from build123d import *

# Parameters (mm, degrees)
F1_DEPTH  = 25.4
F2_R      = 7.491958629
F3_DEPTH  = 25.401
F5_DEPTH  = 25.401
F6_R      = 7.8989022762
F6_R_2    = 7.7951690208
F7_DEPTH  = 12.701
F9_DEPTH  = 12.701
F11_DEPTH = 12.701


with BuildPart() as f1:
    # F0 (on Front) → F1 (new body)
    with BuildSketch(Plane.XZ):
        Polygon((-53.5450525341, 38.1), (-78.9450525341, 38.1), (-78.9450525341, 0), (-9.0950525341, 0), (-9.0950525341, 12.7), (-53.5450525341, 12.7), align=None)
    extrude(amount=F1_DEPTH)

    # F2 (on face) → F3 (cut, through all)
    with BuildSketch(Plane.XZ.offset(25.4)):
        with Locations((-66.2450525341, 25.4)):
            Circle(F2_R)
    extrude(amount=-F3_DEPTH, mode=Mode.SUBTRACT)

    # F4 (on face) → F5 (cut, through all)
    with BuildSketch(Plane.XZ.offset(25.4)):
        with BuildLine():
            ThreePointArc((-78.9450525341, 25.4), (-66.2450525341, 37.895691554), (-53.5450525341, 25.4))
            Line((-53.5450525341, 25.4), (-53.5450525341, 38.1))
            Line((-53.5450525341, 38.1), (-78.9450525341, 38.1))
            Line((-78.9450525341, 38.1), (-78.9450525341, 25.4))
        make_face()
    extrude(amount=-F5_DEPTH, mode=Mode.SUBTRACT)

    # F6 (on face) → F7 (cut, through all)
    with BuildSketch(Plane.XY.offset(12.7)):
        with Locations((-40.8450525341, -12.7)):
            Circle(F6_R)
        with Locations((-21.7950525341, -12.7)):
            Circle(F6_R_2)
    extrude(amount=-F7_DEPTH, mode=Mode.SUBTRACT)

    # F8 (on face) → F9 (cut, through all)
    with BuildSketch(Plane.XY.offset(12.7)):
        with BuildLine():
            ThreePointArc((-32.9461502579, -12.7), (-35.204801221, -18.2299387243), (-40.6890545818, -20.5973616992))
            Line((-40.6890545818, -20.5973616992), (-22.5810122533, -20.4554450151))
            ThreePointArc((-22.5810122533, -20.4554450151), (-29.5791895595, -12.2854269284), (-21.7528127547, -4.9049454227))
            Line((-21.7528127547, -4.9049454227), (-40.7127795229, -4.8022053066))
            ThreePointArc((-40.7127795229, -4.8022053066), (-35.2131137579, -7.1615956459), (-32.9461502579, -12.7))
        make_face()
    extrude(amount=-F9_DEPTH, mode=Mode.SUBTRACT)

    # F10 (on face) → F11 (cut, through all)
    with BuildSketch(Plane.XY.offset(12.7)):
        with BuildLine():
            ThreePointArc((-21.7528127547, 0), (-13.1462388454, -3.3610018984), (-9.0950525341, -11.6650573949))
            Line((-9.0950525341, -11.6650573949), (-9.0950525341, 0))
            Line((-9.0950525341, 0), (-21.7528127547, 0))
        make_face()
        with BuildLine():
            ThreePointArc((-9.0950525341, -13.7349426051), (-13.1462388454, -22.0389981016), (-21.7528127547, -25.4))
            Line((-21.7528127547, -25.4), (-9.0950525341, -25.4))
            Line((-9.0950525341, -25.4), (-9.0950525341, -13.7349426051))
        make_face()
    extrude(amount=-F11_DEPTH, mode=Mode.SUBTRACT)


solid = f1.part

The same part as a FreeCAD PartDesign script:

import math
import FreeCAD as App
import Part
import Sketcher
from FreeCAD import Vector
Q = App.Units.Quantity

doc = App.newDocument("Part")
body = doc.addObject("PartDesign::Body", "Body")

sketch1 = body.newObject("Sketcher::SketchObject", "Sketch")
sketch1.AttachmentSupport = (doc.getObject("XZ_Plane"), [""])
sketch1.MapMode = "FlatFace"
sketch1.addGeometry([
    Part.LineSegment(Vector(-54, 38, 0), Vector(-79, 38, 0)),
    Part.LineSegment(Vector(-79, 38, 0), Vector(-79, 0, 0)),
    Part.LineSegment(Vector(-79, 0, 0), Vector(-9, 0, 0)),
    Part.LineSegment(Vector(-9, 0, 0), Vector(-9, 13, 0)),
    Part.LineSegment(Vector(-9, 13, 0), Vector(-54, 13, 0)),
    Part.LineSegment(Vector(-54, 13, 0), Vector(-54, 38, 0)),
], False)
sketch1.addConstraint([
    Sketcher.Constraint("Coincident", 0, 2, 1, 1),
    Sketcher.Constraint("Coincident", 1, 2, 2, 1),
    Sketcher.Constraint("Coincident", 2, 2, 3, 1),
    Sketcher.Constraint("Coincident", 3, 2, 4, 1),
    Sketcher.Constraint("Coincident", 4, 2, 5, 1),
    Sketcher.Constraint("Coincident", 5, 2, 0, 1),
    Sketcher.Constraint("Horizontal", 0),
    Sketcher.Constraint("Vertical", 1),
    Sketcher.Constraint("Horizontal", 2),
    Sketcher.Constraint("Vertical", 3),
    Sketcher.Constraint("Horizontal", 4),
    Sketcher.Constraint("Vertical", 5),
    Sketcher.Constraint("PointOnObject", 1, 2, -1),
    Sketcher.Constraint("Equal", 0, 5),
    Sketcher.Constraint("DistanceX", 0, 2, 0, 1, Q("1 in")),
    Sketcher.Constraint("DistanceY", 1, 2, 1, 1, Q("1.5 in")),
    Sketcher.Constraint("DistanceX", 2, 1, 2, 2, Q("2.75 in")),
    Sketcher.Constraint("DistanceX", 0, 2, -1, 1, Q("78.945053 mm")),
])
pad1 = body.newObject("PartDesign::Pad", "Pad")
pad1.Profile = sketch1
pad1.Length = Q("1 in")

sketch2 = body.newObject("Sketcher::SketchObject", "Sketch001")
sketch2.AttachmentSupport = (doc.getObject("XZ_Plane"), [""])
sketch2.MapMode = "FlatFace"
sketch2.AttachmentOffset = App.Placement(Vector(0, 0, 1 * 25.4), App.Rotation())
sketch2.addGeometry(Part.Circle(Vector(-66, 25, 0), Vector(0, 0, 1), 7), False)
sketch2.addConstraint([
    Sketcher.Constraint("DistanceY", -1, 1, 0, 3, Q("1 in")),
    Sketcher.Constraint("Diameter", 0, Q("14.983917 mm")),
    Sketcher.Constraint("DistanceX", 0, 3, -1, 1, Q("66.245053 mm")),
])
pocket1 = body.newObject("PartDesign::Pocket", "Pocket")
pocket1.Profile = sketch2
pocket1.Type = "ThroughAll"

sketch3 = body.newObject("Sketcher::SketchObject", "Sketch002")
sketch3.AttachmentSupport = (doc.getObject("XZ_Plane"), [""])
sketch3.MapMode = "FlatFace"
sketch3.AttachmentOffset = App.Placement(Vector(0, 0, 1 * 25.4), App.Rotation())
sketch3.addGeometry([
    Part.ArcOfCircle(Part.Circle(Vector(-66, 25, 0), Vector(0, 0, 1), 13), math.radians(1), math.radians(179)),
    Part.LineSegment(Vector(-54, 25, 0), Vector(-54, 38, 0)),
    Part.LineSegment(Vector(-54, 38, 0), Vector(-79, 38, 0)),
    Part.LineSegment(Vector(-79, 38, 0), Vector(-79, 25, 0)),
], False)
sketch3.addConstraint([
    Sketcher.Constraint("Coincident", 0, 1, 1, 1),
    Sketcher.Constraint("Coincident", 1, 2, 2, 1),
    Sketcher.Constraint("Coincident", 2, 2, 3, 1),
    Sketcher.Constraint("Coincident", 3, 2, 0, 2),
    Sketcher.Constraint("Vertical", 1),
    Sketcher.Constraint("Horizontal", 2),
    Sketcher.Constraint("Vertical", 3),
    Sketcher.Constraint("Horizontal", 0, 1, 3, 2),
    Sketcher.Constraint("DistanceX", 2, 2, 2, 1, Q("1 in")),
    Sketcher.Constraint("DistanceY", 1, 1, 1, 2, Q("0.5 in")),
    Sketcher.Constraint("DistanceY", -1, 1, 0, 1, Q("1 in")),
    Sketcher.Constraint("Radius", 0, Q("12.70167 mm")),
    Sketcher.Constraint("DistanceX", 0, 3, -1, 1, Q("66.245053 mm")),
])
pocket2 = body.newObject("PartDesign::Pocket", "Pocket001")
pocket2.Profile = sketch3
pocket2.Type = "ThroughAll"

sketch4 = body.newObject("Sketcher::SketchObject", "Sketch003")
sketch4.AttachmentSupport = (doc.getObject("XY_Plane"), [""])
sketch4.MapMode = "FlatFace"
sketch4.AttachmentOffset = App.Placement(Vector(0, 0, 0.5 * 25.4), App.Rotation())
sketch4.addGeometry([
    Part.Circle(Vector(-41, -13, 0), Vector(0, 0, 1), 8),
    Part.Circle(Vector(-22, -13, 0), Vector(0, 0, 1), 8),
], False)
sketch4.addConstraint([
    Sketcher.Constraint("Horizontal", 0, 3, 1, 3),
    Sketcher.Constraint("DistanceY", 0, 3, -1, 1, Q("0.5 in")),
    Sketcher.Constraint("DistanceX", 0, 3, 1, 3, Q("0.75 in")),
    Sketcher.Constraint("Diameter", 1, Q("15.590338 mm")),
    Sketcher.Constraint("Diameter", 0, Q("15.797805 mm")),
    Sketcher.Constraint("DistanceX", 0, 3, -1, 1, Q("40.845053 mm")),
])
pocket3 = body.newObject("PartDesign::Pocket", "Pocket002")
pocket3.Profile = sketch4
pocket3.Type = "ThroughAll"

sketch5 = body.newObject("Sketcher::SketchObject", "Sketch004")
sketch5.AttachmentSupport = (doc.getObject("XY_Plane"), [""])
sketch5.MapMode = "FlatFace"
sketch5.AttachmentOffset = App.Placement(Vector(0, 0, 0.5 * 25.4), App.Rotation())
sketch5.addGeometry([
    Part.LineSegment(Vector(-41, -21, 0), Vector(-23, -20, 0)),
    Part.ArcOfCircle(Part.Circle(Vector(-22, -13, 0), Vector(0, 0, 1), 8), math.radians(90), math.radians(264)),
    Part.LineSegment(Vector(-22, -5, 0), Vector(-41, -5, 0)),
    Part.ArcOfCircle(Part.Circle(Vector(-41, -13, 0), Vector(0, 0, 1), 8), math.radians(-89), math.radians(89)),
], False)
sketch5.addConstraint([
    Sketcher.Constraint("Coincident", 0, 2, 1, 2),
    Sketcher.Constraint("Tangent", 1, 1, 2, 1),
    Sketcher.Constraint("Coincident", 2, 2, 3, 2),
    Sketcher.Constraint("Coincident", 3, 1, 0, 1),
    Sketcher.Constraint("Horizontal", 1, 3, 3, 3),
    Sketcher.Constraint("DistanceY", 1, 3, -1, 1, Q("0.5 in")),
    Sketcher.Constraint("DistanceX", 3, 3, 1, 3, Q("0.75 in")),
    Sketcher.Constraint("Radius", 1, Q("7.795169 mm")),
    Sketcher.Constraint("Radius", 3, Q("7.898902 mm")),
    Sketcher.Constraint("Distance", 0, Q("18.108598 mm")),
    Sketcher.Constraint("DistanceX", 0, 2, 1, 1, Q("0.828199 mm")),
    Sketcher.Constraint("DistanceX", 2, 2, -1, 1, Q("40.71278 mm")),
    Sketcher.Constraint("DistanceY", 1, 1, 2, 2, Q("0.10274 mm")),
])
pocket4 = body.newObject("PartDesign::Pocket", "Pocket003")
pocket4.Profile = sketch5
pocket4.Type = "ThroughAll"

sketch6 = body.newObject("Sketcher::SketchObject", "Sketch005")
sketch6.AttachmentSupport = (doc.getObject("XY_Plane"), [""])
sketch6.MapMode = "FlatFace"
sketch6.AttachmentOffset = App.Placement(Vector(0, 0, 0.5 * 25.4), App.Rotation())
sketch6.addGeometry([
    Part.ArcOfCircle(Part.Circle(Vector(-22, -13, 0), Vector(0, 0, 1), 13), math.radians(5), math.radians(90)),
    Part.LineSegment(Vector(-9, -12, 0), Vector(-9, 0, 0)),
    Part.LineSegment(Vector(-9, 0, 0), Vector(-22, 0, 0)),
    Part.ArcOfCircle(Part.Circle(Vector(-22, -13, 0), Vector(0, 0, 1), 13), math.radians(-90), math.radians(-5)),
    Part.LineSegment(Vector(-22, -25, 0), Vector(-9, -25, 0)),
    Part.LineSegment(Vector(-9, -25, 0), Vector(-9, -14, 0)),
], False)
sketch6.addConstraint([
    Sketcher.Constraint("Coincident", 0, 1, 1, 1),
    Sketcher.Constraint("Coincident", 1, 2, 2, 1),
    Sketcher.Constraint("Tangent", 2, 2, 0, 2),
    Sketcher.Constraint("Tangent", 3, 1, 4, 1),
    Sketcher.Constraint("Coincident", 4, 2, 5, 1),
    Sketcher.Constraint("Coincident", 5, 2, 3, 2),
    Sketcher.Constraint("Vertical", 1),
    Sketcher.Constraint("Horizontal", 2),
    Sketcher.Constraint("Horizontal", 4),
    Sketcher.Constraint("Vertical", 5),
    Sketcher.Constraint("Coincident", 3, 3, 0, 3),
    Sketcher.Constraint("Equal", 0, 3),
    Sketcher.Constraint("PointOnObject", 1, 2, -1),
    Sketcher.Constraint("Vertical", 1, 2, 4, 2),
    Sketcher.Constraint("Radius", 0, Q("0.5 in")),
    Sketcher.Constraint("DistanceX", 2, 2, 2, 1, Q("12.65776 mm")),
    Sketcher.Constraint("DistanceX", 0, 3, -1, 1, Q("21.752813 mm")),
])
pocket5 = body.newObject("PartDesign::Pocket", "Pocket004")
pocket5.Profile = sketch6
pocket5.Type = "ThroughAll"

doc.recompute()
